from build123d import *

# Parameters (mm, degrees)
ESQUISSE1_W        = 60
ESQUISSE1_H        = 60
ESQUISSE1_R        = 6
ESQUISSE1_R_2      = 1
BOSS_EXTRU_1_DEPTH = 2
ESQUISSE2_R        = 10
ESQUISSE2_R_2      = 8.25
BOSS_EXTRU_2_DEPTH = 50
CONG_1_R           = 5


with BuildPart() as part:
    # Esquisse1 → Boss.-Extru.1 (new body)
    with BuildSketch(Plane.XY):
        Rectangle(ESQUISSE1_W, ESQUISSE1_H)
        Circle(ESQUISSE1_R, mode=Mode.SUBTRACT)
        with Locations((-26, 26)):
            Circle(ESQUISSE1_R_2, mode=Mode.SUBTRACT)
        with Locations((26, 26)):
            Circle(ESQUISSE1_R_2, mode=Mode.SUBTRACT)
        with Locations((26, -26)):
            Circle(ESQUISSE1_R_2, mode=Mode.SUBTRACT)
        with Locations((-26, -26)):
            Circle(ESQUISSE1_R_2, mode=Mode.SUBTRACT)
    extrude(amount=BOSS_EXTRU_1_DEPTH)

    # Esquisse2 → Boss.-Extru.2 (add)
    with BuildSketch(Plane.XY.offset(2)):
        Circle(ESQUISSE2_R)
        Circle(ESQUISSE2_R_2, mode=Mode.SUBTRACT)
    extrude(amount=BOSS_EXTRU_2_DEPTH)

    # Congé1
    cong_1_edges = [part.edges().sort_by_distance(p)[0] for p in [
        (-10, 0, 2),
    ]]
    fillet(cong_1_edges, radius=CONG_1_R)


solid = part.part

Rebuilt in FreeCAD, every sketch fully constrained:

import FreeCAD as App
import Part
import Sketcher

V = App.Vector


def edges_at(feature, points):
    """Names of the edges that pass closest to the given points."""
    edges = feature.Shape.Edges
    near = lambda p: min(range(len(edges)), key=lambda i: edges[i].distToShape(Part.Vertex(*p))[0])
    return sorted({f"Edge{near(p) + 1}" for p in points})

doc = App.newDocument("Part")
body = doc.addObject("PartDesign::Body", "Body")

sketch1 = body.newObject("Sketcher::SketchObject", "Sketch")
sketch1.AttachmentSupport = (doc.getObject("XY_Plane"), [""])
sketch1.MapMode = "FlatFace"
sketch1.addGeometry(Part.LineSegment(V(-30, 30, 0), V(-30, -30, 0)), False)
sketch1.addGeometry(Part.LineSegment(V(-30, -30, 0), V(30, -30, 0)), False)
sketch1.addGeometry(Part.LineSegment(V(30, -30, 0), V(30, 30, 0)), False)
sketch1.addGeometry(Part.LineSegment(V(30, 30, 0), V(-30, 30, 0)), False)
sketch1.addGeometry(Part.Circle(V(-26, -26, 0), V(0, 0, 1), 1), False)
sketch1.addGeometry(Part.Circle(V(26, -26, 0), V(0, 0, 1), 1), False)
sketch1.addGeometry(Part.Circle(V(-26, 26, 0), V(0, 0, 1), 1), False)
sketch1.addGeometry(Part.Circle(V(0, 0, 0), V(0, 0, 1), 6), False)
sketch1.addGeometry(Part.Circle(V(26, 26, 0), V(0, 0, 1), 1), False)
sketch1.addConstraint(Sketcher.Constraint("Coincident", 0, 2, 1, 1))
sketch1.addConstraint(Sketcher.Constraint("Coincident", 1, 2, 2, 1))
sketch1.addConstraint(Sketcher.Constraint("Coincident", 2, 2, 3, 1))
sketch1.addConstraint(Sketcher.Constraint("Coincident", 3, 2, 0, 1))
sketch1.addConstraint(Sketcher.Constraint("Vertical", 0))
sketch1.addConstraint(Sketcher.Constraint("Horizontal", 1))
sketch1.addConstraint(Sketcher.Constraint("Vertical", 2))
sketch1.addConstraint(Sketcher.Constraint("Horizontal", 3))
sketch1.addConstraint(Sketcher.Constraint("Coincident", 7, 3, -1, 1))
sketch1.addConstraint(Sketcher.Constraint("Equal", 4, 5))
sketch1.addConstraint(Sketcher.Constraint("Equal", 5, 6))
sketch1.addConstraint(Sketcher.Constraint("Equal", 6, 8))
sketch1.addConstraint(Sketcher.Constraint("Symmetric", 5, 3, 6, 3, -1, 1))
sketch1.addConstraint(Sketcher.Constraint("Symmetric", 4, 3, 8, 3, -1, 1))
sketch1.addConstraint(Sketcher.Constraint("Symmetric", 0, 2, 2, 2, -1, 1))
sketch1.addConstraint(Sketcher.Constraint("Symmetric", 4, 3, 5, 3, -2))
sketch1.addConstraint(Sketcher.Constraint("Equal", 3, 0))
sketch1.addConstraint(Sketcher.Constraint("Diameter", 4, 2.0))
sketch1.addConstraint(Sketcher.Constraint("Diameter", 7, 12.0))
sketch1.addConstraint(Sketcher.Constraint("DistanceX", 1, 1, 1, 2, 60.0))
sketch1.addConstraint(Sketcher.Constraint("DistanceX", 4, 3, -1, 1, 26.0))
sketch1.addConstraint(Sketcher.Constraint("DistanceY", 4, 3, -1, 1, 26.0))
pad1 = body.newObject("PartDesign::Pad", "Pad")
pad1.Profile = sketch1
pad1.Length = 2

sketch2 = body.newObject("Sketcher::SketchObject", "Sketch001")
sketch2.AttachmentSupport = (doc.getObject("XY_Plane"), [""])
sketch2.MapMode = "FlatFace"
sketch2.AttachmentOffset = App.Placement(V(0, 0, 2), App.Rotation())
sketch2.addGeometry(Part.Circle(V(0, 0, 0), V(0, 0, 1), 10), False)
sketch2.addGeometry(Part.Circle(V(0, 0, 0), V(0, 0, 1), 8.25), False)
sketch2.addConstraint(Sketcher.Constraint("Coincident", 0, 3, -1, 1))
sketch2.addConstraint(Sketcher.Constraint("Coincident", 1, 3, -1, 1))
sketch2.addConstraint(Sketcher.Constraint("Diameter", 0, 20.0))
sketch2.addConstraint(Sketcher.Constraint("Diameter", 1, 16.5))
pad2 = body.newObject("PartDesign::Pad", "Pad001")
pad2.Profile = sketch2
pad2.Length = 50
doc.recompute()

fillet = body.newObject("PartDesign::Fillet", "Fillet")
fillet.Base = (pad2, edges_at(pad2, [(-10, 0, 2)]))
fillet.Radius = 5

doc.recompute()
